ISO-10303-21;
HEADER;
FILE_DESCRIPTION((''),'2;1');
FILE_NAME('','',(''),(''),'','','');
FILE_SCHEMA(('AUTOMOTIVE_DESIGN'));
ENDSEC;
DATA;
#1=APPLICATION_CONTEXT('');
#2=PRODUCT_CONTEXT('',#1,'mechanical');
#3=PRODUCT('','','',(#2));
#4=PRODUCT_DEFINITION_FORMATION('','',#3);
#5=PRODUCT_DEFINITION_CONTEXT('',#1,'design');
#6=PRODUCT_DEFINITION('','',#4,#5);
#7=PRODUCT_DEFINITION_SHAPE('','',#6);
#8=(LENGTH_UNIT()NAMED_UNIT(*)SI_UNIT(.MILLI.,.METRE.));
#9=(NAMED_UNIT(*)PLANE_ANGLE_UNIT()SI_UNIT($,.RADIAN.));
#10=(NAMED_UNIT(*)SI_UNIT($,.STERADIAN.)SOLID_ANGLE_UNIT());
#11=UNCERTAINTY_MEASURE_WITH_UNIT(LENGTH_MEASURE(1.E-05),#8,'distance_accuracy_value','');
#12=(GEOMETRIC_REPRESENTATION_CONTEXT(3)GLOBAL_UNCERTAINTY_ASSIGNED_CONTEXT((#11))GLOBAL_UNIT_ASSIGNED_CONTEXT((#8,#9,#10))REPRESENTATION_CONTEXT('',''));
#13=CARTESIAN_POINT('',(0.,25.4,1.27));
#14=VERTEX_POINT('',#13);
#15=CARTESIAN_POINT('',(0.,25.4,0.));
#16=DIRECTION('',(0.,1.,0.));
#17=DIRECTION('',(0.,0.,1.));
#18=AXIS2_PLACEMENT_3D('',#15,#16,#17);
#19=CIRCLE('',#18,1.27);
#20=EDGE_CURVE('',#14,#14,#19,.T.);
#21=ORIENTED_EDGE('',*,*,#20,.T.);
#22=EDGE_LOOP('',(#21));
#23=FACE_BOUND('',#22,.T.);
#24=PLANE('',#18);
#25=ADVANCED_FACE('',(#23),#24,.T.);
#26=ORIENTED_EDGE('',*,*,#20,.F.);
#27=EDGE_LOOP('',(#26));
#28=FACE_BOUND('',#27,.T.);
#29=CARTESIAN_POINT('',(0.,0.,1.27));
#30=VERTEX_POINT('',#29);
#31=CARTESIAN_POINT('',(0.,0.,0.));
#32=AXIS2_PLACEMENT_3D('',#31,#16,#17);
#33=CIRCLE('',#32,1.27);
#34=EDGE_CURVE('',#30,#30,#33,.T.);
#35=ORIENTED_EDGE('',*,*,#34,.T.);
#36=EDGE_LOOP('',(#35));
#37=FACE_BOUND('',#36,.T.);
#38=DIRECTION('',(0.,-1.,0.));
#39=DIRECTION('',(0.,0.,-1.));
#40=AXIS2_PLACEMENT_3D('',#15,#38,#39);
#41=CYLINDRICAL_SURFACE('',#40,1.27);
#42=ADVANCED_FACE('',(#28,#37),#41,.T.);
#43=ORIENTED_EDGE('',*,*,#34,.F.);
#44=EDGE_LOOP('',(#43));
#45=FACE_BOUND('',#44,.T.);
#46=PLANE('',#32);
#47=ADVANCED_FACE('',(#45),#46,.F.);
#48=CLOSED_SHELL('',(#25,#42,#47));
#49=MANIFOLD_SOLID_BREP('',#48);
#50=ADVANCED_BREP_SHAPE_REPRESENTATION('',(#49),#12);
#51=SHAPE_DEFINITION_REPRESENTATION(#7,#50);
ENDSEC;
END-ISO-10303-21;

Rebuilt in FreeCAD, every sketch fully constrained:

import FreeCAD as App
import Part
import Sketcher

V = App.Vector
Q = App.Units.Quantity

doc = App.newDocument("Part")
body = doc.addObject("PartDesign::Body", "Body")

sketch1 = body.newObject("Sketcher::SketchObject", "Sketch")
sketch1.AttachmentSupport = (doc.getObject("XZ_Plane"), [""])
sketch1.MapMode = "FlatFace"
sketch1.addGeometry(Part.Circle(V(0, 0, 0), V(0, 0, 1), 1.3), False)
sketch1.addConstraint(Sketcher.Constraint("Coincident", 0, 3, -1, 1))
sketch1.addConstraint(Sketcher.Constraint("Diameter", 0, Q("0.1 in")))
pad1 = body.newObject("PartDesign::Pad", "Pad")
pad1.Profile = sketch1
pad1.Length = Q("1 in")
pad1.Reversed = True

doc.recompute()
